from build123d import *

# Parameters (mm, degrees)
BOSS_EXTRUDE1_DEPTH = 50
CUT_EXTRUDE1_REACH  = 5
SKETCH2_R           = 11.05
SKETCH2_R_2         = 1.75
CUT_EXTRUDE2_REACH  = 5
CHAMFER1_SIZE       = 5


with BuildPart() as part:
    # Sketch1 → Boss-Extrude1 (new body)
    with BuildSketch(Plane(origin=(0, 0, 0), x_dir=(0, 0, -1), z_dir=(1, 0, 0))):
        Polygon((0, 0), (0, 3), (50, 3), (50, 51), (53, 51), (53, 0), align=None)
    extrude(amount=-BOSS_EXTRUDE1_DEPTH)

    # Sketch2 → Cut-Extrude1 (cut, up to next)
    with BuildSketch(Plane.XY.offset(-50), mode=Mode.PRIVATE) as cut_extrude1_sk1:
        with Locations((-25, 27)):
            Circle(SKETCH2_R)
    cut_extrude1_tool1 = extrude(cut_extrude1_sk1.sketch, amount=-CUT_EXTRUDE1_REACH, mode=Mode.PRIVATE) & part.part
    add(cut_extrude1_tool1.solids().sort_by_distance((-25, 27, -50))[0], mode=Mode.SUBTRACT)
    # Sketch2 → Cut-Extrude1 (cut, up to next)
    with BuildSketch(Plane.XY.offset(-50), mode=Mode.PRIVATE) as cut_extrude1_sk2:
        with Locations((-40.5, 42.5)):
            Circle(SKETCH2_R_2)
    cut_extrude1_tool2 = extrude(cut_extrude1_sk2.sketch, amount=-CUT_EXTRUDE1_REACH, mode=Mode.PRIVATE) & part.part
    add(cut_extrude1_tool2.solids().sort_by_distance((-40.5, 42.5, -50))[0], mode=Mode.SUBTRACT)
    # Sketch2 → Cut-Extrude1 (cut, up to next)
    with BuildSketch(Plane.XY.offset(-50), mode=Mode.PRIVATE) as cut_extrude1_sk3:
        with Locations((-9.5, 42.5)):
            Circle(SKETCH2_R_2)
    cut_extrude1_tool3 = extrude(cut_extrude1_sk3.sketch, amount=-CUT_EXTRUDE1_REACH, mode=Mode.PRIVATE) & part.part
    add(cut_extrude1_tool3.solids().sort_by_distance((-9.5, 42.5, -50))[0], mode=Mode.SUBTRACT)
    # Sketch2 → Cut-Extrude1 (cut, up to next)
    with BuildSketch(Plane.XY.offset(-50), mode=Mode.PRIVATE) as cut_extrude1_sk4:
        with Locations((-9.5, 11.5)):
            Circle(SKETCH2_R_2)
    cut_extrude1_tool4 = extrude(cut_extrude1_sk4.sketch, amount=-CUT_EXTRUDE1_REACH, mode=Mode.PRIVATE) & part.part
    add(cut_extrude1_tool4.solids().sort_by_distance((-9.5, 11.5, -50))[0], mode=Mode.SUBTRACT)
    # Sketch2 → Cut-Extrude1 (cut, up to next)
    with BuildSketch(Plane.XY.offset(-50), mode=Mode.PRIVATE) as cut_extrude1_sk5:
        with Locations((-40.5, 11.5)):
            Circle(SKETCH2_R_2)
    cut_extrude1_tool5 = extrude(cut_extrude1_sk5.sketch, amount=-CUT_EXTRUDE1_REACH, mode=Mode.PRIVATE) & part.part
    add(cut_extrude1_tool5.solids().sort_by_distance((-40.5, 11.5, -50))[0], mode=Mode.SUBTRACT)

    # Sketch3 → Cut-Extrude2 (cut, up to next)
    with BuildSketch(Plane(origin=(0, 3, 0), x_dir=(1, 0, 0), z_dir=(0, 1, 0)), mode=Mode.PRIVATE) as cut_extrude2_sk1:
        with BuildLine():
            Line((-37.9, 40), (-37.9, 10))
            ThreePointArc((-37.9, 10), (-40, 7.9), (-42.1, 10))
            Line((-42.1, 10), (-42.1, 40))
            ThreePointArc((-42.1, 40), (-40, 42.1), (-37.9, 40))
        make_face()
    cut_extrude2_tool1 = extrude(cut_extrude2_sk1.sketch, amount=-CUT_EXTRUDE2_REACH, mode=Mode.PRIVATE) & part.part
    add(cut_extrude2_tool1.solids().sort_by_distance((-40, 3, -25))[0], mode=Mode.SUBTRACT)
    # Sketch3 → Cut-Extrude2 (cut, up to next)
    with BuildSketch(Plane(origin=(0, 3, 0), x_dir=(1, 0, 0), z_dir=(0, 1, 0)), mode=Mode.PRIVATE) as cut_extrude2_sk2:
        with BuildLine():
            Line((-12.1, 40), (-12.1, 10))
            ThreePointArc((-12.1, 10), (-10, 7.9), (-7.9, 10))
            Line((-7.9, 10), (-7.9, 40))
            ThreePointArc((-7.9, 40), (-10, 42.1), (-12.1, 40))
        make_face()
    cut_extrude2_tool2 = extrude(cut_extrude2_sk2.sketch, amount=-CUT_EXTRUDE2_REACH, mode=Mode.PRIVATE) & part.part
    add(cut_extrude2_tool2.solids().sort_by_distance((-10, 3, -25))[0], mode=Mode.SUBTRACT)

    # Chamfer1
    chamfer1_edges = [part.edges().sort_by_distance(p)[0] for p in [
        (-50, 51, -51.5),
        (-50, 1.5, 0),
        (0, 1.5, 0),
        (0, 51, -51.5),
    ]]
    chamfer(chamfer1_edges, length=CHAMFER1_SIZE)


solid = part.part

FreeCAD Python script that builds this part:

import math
import FreeCAD as App
import Part
import Sketcher

V = App.Vector


def edges_at(feature, points):
    """Names of the edges that pass closest to the given points."""
    edges = feature.Shape.Edges
    near = lambda p: min(range(len(edges)), key=lambda i: edges[i].distToShape(Part.Vertex(*p))[0])
    return sorted({f"Edge{near(p) + 1}" for p in points})

doc = App.newDocument("Part")
params = doc.addObject("Spreadsheet::Sheet", "Params")
for row, (alias, value) in enumerate([
    ("sketch1_width", "3 mm"),
    ("sketch1_width2", "51 mm"),
    ("sketch1_height", "53 mm"),
    ("pad1_length", "50 mm"),
    ("sketch2_diameter", "22.1 mm"),
    ("sketch3_diameter", "3.5 mm"),
    ("sketch4_diameter", "3.5 mm"),
    ("sketch5_diameter", "3.5 mm"),
    ("sketch6_diameter", "3.5 mm"),
    ("sketch7_radius", "2.1 mm"),
    ("sketch7_height", "30 mm"),
    ("sketch8_radius", "2.1 mm"),
    ("sketch8_height", "30 mm"),
    ("chamfer_size", "5 mm"),
], start=1):
    params.set(f"A{row}", alias)
    params.set(f"B{row}", "=" + value)
    params.setAlias(f"B{row}", alias)

body = doc.addObject("PartDesign::Body", "Body")

# Sketch on YZ plane
sketch1 = body.newObject("Sketcher::SketchObject", "Sketch")
sketch1.AttachmentSupport = (doc.getObject("YZ_Plane"), [""])
sketch1.MapMode = "FlatFace"
sketch1.addGeometry(Part.LineSegment(V(3, 0, 0), V(0, 0, 0)), False)
sketch1.addGeometry(Part.LineSegment(V(0, 0, 0), V(0, -53, 0)), False)
sketch1.addGeometry(Part.LineSegment(V(0, -53, 0), V(51, -53, 0)), False)
sketch1.addGeometry(Part.LineSegment(V(51, -53, 0), V(51, -50, 0)), False)
sketch1.addGeometry(Part.LineSegment(V(51, -50, 0), V(3, -50, 0)), False)
sketch1.addGeometry(Part.LineSegment(V(3, -50, 0), V(3, 0, 0)), False)
sketch1.addConstraint(Sketcher.Constraint("Coincident", 0, 2, 1, 1))
sketch1.addConstraint(Sketcher.Constraint("Coincident", 1, 2, 2, 1))
sketch1.addConstraint(Sketcher.Constraint("Coincident", 2, 2, 3, 1))
sketch1.addConstraint(Sketcher.Constraint("Coincident", 3, 2, 4, 1))
sketch1.addConstraint(Sketcher.Constraint("Coincident", 4, 2, 5, 1))
sketch1.addConstraint(Sketcher.Constraint("Coincident", 5, 2, 0, 1))
sketch1.addConstraint(Sketcher.Constraint("Horizontal", 0))
sketch1.addConstraint(Sketcher.Constraint("Vertical", 1))
sketch1.addConstraint(Sketcher.Constraint("Horizontal", 2))
sketch1.addConstraint(Sketcher.Constraint("Vertical", 3))
sketch1.addConstraint(Sketcher.Constraint("Horizontal", 4))
sketch1.addConstraint(Sketcher.Constraint("Vertical", 5))
sketch1.addConstraint(Sketcher.Constraint("Coincident", 0, 2, -1, 1))
sketch1.addConstraint(Sketcher.Constraint("Equal", 0, 3))
sketch1.addConstraint(Sketcher.Constraint("DistanceX", 0, 2, 0, 1, 3.0))
sketch1.addConstraint(Sketcher.Constraint("DistanceX", 2, 1, 2, 2, 51.0))
sketch1.addConstraint(Sketcher.Constraint("DistanceY", 1, 2, 1, 1, 53.0))
sketch1.setExpression("Constraints[14]", "Params.sketch1_width")
sketch1.setExpression("Constraints[15]", "Params.sketch1_width2")
sketch1.setExpression("Constraints[16]", "Params.sketch1_height")
pad1 = body.newObject("PartDesign::Pad", "Pad")
pad1.Profile = sketch1
pad1.setExpression("Length", "Params.pad1_length")
pad1.Reversed = True

# Sketch on XY plane
sketch2 = body.newObject("Sketcher::SketchObject", "Sketch001")
sketch2.AttachmentSupport = (doc.getObject("XY_Plane"), [""])
sketch2.MapMode = "FlatFace"
sketch2.AttachmentOffset = App.Placement(V(0, 0, -50), App.Rotation())
sketch2.addGeometry(Part.Circle(V(-25, 27, 0), V(0, 0, 1), 11), False)
sketch2.addConstraint(Sketcher.Constraint("Diameter", 0, 22.1))
sketch2.addConstraint(Sketcher.Constraint("DistanceX", 0, 3, -1, 1, 25.0))
sketch2.addConstraint(Sketcher.Constraint("DistanceY", -1, 1, 0, 3, 27.0))
sketch2.setExpression("Constraints[0]", "Params.sketch2_diameter")
pocket1 = body.newObject("PartDesign::Pocket", "Pocket")
pocket1.Profile = sketch2
pocket1.Type = "UpToFirst"

# Sketch on XY plane
sketch3 = body.newObject("Sketcher::SketchObject", "Sketch002")
sketch3.AttachmentSupport = (doc.getObject("XY_Plane"), [""])
sketch3.MapMode = "FlatFace"
sketch3.AttachmentOffset = App.Placement(V(0, 0, -50), App.Rotation())
sketch3.addGeometry(Part.Circle(V(-40.5, 42.5, 0), V(0, 0, 1), 1.8), False)
sketch3.addConstraint(Sketcher.Constraint("Diameter", 0, 3.5))
sketch3.addConstraint(Sketcher.Constraint("DistanceX", 0, 3, -1, 1, 40.5))
sketch3.addConstraint(Sketcher.Constraint("DistanceY", -1, 1, 0, 3, 42.5))
sketch3.setExpression("Constraints[0]", "Params.sketch3_diameter")
pocket2 = body.newObject("PartDesign::Pocket", "Pocket001")
pocket2.Profile = sketch3
pocket2.Type = "UpToFirst"

# Sketch on XY plane
sketch4 = body.newObject("Sketcher::SketchObject", "Sketch003")
sketch4.AttachmentSupport = (doc.getObject("XY_Plane"), [""])
sketch4.MapMode = "FlatFace"
sketch4.AttachmentOffset = App.Placement(V(0, 0, -50), App.Rotation())
sketch4.addGeometry(Part.Circle(V(-9.5, 42.5, 0), V(0, 0, 1), 1.8), False)
sketch4.addConstraint(Sketcher.Constraint("Diameter", 0, 3.5))
sketch4.addConstraint(Sketcher.Constraint("DistanceX", 0, 3, -1, 1, 9.5))
sketch4.addConstraint(Sketcher.Constraint("DistanceY", -1, 1, 0, 3, 42.5))
sketch4.setExpression("Constraints[0]", "Params.sketch4_diameter")
pocket3 = body.newObject("PartDesign::Pocket", "Pocket002")
pocket3.Profile = sketch4
pocket3.Type = "UpToFirst"

# Sketch on XY plane
sketch5 = body.newObject("Sketcher::SketchObject", "Sketch004")
sketch5.AttachmentSupport = (doc.getObject("XY_Plane"), [""])
sketch5.MapMode = "FlatFace"
sketch5.AttachmentOffset = App.Placement(V(0, 0, -50), App.Rotation())
sketch5.addGeometry(Part.Circle(V(-9.5, 11.5, 0), V(0, 0, 1), 1.8), False)
sketch5.addConstraint(Sketcher.Constraint("Diameter", 0, 3.5))
sketch5.addConstraint(Sketcher.Constraint("DistanceX", 0, 3, -1, 1, 9.5))
sketch5.addConstraint(Sketcher.Constraint("DistanceY", -1, 1, 0, 3, 11.5))
sketch5.setExpression("Constraints[0]", "Params.sketch5_diameter")
pocket4 = body.newObject("PartDesign::Pocket", "Pocket003")
pocket4.Profile = sketch5
pocket4.Type = "UpToFirst"

# Sketch on XY plane
sketch6 = body.newObject("Sketcher::SketchObject", "Sketch005")
sketch6.AttachmentSupport = (doc.getObject("XY_Plane"), [""])
sketch6.MapMode = "FlatFace"
sketch6.AttachmentOffset = App.Placement(V(0, 0, -50), App.Rotation())
sketch6.addGeometry(Part.Circle(V(-40.5, 11.5, 0), V(0, 0, 1), 1.8), False)
sketch6.addConstraint(Sketcher.Constraint("Diameter", 0, 3.5))
sketch6.addConstraint(Sketcher.Constraint("DistanceX", 0, 3, -1, 1, 40.5))
sketch6.addConstraint(Sketcher.Constraint("DistanceY", -1, 1, 0, 3, 11.5))
sketch6.setExpression("Constraints[0]", "Params.sketch6_diameter")
pocket5 = body.newObject("PartDesign::Pocket", "Pocket004")
pocket5.Profile = sketch6
pocket5.Type = "UpToFirst"

# Sketch on XZ plane
sketch7 = body.newObject("Sketcher::SketchObject", "Sketch006")
sketch7.AttachmentSupport = (doc.getObject("XZ_Plane"), [""])
sketch7.MapMode = "FlatFace"
sketch7.AttachmentOffset = App.Placement(V(0, 0, -3), App.Rotation())
sketch7.addGeometry(Part.LineSegment(V(-37.9, -10, 0), V(-37.9, -40, 0)), False)
sketch7.addGeometry(Part.ArcOfCircle(Part.Circle(V(-40, -40, 0), V(0, 0, 1), 2.1), math.radians(180), math.radians(360)), False)
sketch7.addGeometry(Part.LineSegment(V(-42.1, -40, 0), V(-42.1, -10, 0)), False)
sketch7.addGeometry(Part.ArcOfCircle(Part.Circle(V(-40, -10, 0), V(0, 0, 1), 2.1), math.radians(0), math.radians(180)), False)
sketch7.addConstraint(Sketcher.Constraint("Tangent", 0, 2, 1, 2))
sketch7.addConstraint(Sketcher.Constraint("Tangent", 1, 1, 2, 1))
sketch7.addConstraint(Sketcher.Constraint("Tangent", 2, 2, 3, 2))
sketch7.addConstraint(Sketcher.Constraint("Tangent", 3, 1, 0, 1))
sketch7.addConstraint(Sketcher.Constraint("Vertical", 0))
sketch7.addConstraint(Sketcher.Constraint("Vertical", 2))
sketch7.addConstraint(Sketcher.Constraint("Radius", 1, 2.1))
sketch7.addConstraint(Sketcher.Constraint("DistanceY", 0, 2, 0, 1, 30.0))
sketch7.addConstraint(Sketcher.Constraint("DistanceX", 1, 3, -1, 1, 40.0))
sketch7.addConstraint(Sketcher.Constraint("DistanceY", 1, 3, -1, 1, 40.0))
sketch7.setExpression("Constraints[6]", "Params.sketch7_radius")
sketch7.setExpression("Constraints[7]", "Params.sketch7_height")
pocket6 = body.newObject("PartDesign::Pocket", "Pocket005")
pocket6.Profile = sketch7
pocket6.Type = "UpToFirst"
pocket6.Reversed = True

# Sketch on XZ plane
sketch8 = body.newObject("Sketcher::SketchObject", "Sketch007")
sketch8.AttachmentSupport = (doc.getObject("XZ_Plane"), [""])
sketch8.MapMode = "FlatFace"
sketch8.AttachmentOffset = App.Placement(V(0, 0, -3), App.Rotation())
sketch8.addGeometry(Part.LineSegment(V(-12.1, -40, 0), V(-12.1, -10, 0)), False)
sketch8.addGeometry(Part.ArcOfCircle(Part.Circle(V(-10, -10, 0), V(0, 0, 1), 2.1), math.radians(0), math.radians(180)), False)
sketch8.addGeometry(Part.LineSegment(V(-7.9, -10, 0), V(-7.9, -40, 0)), False)
sketch8.addGeometry(Part.ArcOfCircle(Part.Circle(V(-10, -40, 0), V(0, 0, 1), 2.1), math.radians(180), math.radians(360)), False)
sketch8.addConstraint(Sketcher.Constraint("Tangent", 0, 2, 1, 2))
sketch8.addConstraint(Sketcher.Constraint("Tangent", 1, 1, 2, 1))
sketch8.addConstraint(Sketcher.Constraint("Tangent", 2, 2, 3, 2))
sketch8.addConstraint(Sketcher.Constraint("Tangent", 3, 1, 0, 1))
sketch8.addConstraint(Sketcher.Constraint("Vertical", 0))
sketch8.addConstraint(Sketcher.Constraint("Vertical", 2))
sketch8.addConstraint(Sketcher.Constraint("Radius", 1, 2.1))
sketch8.addConstraint(Sketcher.Constraint("DistanceY", 0, 1, 0, 2, 30.0))
sketch8.addConstraint(Sketcher.Constraint("DistanceX", 1, 3, -1, 1, 10.0))
sketch8.addConstraint(Sketcher.Constraint("DistanceY", 1, 3, -1, 1, 10.0))
sketch8.setExpression("Constraints[6]", "Params.sketch8_radius")
sketch8.setExpression("Constraints[7]", "Params.sketch8_height")
pocket7 = body.newObject("PartDesign::Pocket", "Pocket006")
pocket7.Profile = sketch8
pocket7.Type = "UpToFirst"
pocket7.Reversed = True
doc.recompute()

chamfer = body.newObject("PartDesign::Chamfer", "Chamfer")
chamfer.Base = (pocket7, edges_at(pocket7, [
    (-50, 51, -51.5),
    (-50, 1.5, 0),
    (0, 1.5, 0),
    (0, 51, -51.5),
]))
chamfer.setExpression("Size", "Params.chamfer_size")

doc.recompute()
